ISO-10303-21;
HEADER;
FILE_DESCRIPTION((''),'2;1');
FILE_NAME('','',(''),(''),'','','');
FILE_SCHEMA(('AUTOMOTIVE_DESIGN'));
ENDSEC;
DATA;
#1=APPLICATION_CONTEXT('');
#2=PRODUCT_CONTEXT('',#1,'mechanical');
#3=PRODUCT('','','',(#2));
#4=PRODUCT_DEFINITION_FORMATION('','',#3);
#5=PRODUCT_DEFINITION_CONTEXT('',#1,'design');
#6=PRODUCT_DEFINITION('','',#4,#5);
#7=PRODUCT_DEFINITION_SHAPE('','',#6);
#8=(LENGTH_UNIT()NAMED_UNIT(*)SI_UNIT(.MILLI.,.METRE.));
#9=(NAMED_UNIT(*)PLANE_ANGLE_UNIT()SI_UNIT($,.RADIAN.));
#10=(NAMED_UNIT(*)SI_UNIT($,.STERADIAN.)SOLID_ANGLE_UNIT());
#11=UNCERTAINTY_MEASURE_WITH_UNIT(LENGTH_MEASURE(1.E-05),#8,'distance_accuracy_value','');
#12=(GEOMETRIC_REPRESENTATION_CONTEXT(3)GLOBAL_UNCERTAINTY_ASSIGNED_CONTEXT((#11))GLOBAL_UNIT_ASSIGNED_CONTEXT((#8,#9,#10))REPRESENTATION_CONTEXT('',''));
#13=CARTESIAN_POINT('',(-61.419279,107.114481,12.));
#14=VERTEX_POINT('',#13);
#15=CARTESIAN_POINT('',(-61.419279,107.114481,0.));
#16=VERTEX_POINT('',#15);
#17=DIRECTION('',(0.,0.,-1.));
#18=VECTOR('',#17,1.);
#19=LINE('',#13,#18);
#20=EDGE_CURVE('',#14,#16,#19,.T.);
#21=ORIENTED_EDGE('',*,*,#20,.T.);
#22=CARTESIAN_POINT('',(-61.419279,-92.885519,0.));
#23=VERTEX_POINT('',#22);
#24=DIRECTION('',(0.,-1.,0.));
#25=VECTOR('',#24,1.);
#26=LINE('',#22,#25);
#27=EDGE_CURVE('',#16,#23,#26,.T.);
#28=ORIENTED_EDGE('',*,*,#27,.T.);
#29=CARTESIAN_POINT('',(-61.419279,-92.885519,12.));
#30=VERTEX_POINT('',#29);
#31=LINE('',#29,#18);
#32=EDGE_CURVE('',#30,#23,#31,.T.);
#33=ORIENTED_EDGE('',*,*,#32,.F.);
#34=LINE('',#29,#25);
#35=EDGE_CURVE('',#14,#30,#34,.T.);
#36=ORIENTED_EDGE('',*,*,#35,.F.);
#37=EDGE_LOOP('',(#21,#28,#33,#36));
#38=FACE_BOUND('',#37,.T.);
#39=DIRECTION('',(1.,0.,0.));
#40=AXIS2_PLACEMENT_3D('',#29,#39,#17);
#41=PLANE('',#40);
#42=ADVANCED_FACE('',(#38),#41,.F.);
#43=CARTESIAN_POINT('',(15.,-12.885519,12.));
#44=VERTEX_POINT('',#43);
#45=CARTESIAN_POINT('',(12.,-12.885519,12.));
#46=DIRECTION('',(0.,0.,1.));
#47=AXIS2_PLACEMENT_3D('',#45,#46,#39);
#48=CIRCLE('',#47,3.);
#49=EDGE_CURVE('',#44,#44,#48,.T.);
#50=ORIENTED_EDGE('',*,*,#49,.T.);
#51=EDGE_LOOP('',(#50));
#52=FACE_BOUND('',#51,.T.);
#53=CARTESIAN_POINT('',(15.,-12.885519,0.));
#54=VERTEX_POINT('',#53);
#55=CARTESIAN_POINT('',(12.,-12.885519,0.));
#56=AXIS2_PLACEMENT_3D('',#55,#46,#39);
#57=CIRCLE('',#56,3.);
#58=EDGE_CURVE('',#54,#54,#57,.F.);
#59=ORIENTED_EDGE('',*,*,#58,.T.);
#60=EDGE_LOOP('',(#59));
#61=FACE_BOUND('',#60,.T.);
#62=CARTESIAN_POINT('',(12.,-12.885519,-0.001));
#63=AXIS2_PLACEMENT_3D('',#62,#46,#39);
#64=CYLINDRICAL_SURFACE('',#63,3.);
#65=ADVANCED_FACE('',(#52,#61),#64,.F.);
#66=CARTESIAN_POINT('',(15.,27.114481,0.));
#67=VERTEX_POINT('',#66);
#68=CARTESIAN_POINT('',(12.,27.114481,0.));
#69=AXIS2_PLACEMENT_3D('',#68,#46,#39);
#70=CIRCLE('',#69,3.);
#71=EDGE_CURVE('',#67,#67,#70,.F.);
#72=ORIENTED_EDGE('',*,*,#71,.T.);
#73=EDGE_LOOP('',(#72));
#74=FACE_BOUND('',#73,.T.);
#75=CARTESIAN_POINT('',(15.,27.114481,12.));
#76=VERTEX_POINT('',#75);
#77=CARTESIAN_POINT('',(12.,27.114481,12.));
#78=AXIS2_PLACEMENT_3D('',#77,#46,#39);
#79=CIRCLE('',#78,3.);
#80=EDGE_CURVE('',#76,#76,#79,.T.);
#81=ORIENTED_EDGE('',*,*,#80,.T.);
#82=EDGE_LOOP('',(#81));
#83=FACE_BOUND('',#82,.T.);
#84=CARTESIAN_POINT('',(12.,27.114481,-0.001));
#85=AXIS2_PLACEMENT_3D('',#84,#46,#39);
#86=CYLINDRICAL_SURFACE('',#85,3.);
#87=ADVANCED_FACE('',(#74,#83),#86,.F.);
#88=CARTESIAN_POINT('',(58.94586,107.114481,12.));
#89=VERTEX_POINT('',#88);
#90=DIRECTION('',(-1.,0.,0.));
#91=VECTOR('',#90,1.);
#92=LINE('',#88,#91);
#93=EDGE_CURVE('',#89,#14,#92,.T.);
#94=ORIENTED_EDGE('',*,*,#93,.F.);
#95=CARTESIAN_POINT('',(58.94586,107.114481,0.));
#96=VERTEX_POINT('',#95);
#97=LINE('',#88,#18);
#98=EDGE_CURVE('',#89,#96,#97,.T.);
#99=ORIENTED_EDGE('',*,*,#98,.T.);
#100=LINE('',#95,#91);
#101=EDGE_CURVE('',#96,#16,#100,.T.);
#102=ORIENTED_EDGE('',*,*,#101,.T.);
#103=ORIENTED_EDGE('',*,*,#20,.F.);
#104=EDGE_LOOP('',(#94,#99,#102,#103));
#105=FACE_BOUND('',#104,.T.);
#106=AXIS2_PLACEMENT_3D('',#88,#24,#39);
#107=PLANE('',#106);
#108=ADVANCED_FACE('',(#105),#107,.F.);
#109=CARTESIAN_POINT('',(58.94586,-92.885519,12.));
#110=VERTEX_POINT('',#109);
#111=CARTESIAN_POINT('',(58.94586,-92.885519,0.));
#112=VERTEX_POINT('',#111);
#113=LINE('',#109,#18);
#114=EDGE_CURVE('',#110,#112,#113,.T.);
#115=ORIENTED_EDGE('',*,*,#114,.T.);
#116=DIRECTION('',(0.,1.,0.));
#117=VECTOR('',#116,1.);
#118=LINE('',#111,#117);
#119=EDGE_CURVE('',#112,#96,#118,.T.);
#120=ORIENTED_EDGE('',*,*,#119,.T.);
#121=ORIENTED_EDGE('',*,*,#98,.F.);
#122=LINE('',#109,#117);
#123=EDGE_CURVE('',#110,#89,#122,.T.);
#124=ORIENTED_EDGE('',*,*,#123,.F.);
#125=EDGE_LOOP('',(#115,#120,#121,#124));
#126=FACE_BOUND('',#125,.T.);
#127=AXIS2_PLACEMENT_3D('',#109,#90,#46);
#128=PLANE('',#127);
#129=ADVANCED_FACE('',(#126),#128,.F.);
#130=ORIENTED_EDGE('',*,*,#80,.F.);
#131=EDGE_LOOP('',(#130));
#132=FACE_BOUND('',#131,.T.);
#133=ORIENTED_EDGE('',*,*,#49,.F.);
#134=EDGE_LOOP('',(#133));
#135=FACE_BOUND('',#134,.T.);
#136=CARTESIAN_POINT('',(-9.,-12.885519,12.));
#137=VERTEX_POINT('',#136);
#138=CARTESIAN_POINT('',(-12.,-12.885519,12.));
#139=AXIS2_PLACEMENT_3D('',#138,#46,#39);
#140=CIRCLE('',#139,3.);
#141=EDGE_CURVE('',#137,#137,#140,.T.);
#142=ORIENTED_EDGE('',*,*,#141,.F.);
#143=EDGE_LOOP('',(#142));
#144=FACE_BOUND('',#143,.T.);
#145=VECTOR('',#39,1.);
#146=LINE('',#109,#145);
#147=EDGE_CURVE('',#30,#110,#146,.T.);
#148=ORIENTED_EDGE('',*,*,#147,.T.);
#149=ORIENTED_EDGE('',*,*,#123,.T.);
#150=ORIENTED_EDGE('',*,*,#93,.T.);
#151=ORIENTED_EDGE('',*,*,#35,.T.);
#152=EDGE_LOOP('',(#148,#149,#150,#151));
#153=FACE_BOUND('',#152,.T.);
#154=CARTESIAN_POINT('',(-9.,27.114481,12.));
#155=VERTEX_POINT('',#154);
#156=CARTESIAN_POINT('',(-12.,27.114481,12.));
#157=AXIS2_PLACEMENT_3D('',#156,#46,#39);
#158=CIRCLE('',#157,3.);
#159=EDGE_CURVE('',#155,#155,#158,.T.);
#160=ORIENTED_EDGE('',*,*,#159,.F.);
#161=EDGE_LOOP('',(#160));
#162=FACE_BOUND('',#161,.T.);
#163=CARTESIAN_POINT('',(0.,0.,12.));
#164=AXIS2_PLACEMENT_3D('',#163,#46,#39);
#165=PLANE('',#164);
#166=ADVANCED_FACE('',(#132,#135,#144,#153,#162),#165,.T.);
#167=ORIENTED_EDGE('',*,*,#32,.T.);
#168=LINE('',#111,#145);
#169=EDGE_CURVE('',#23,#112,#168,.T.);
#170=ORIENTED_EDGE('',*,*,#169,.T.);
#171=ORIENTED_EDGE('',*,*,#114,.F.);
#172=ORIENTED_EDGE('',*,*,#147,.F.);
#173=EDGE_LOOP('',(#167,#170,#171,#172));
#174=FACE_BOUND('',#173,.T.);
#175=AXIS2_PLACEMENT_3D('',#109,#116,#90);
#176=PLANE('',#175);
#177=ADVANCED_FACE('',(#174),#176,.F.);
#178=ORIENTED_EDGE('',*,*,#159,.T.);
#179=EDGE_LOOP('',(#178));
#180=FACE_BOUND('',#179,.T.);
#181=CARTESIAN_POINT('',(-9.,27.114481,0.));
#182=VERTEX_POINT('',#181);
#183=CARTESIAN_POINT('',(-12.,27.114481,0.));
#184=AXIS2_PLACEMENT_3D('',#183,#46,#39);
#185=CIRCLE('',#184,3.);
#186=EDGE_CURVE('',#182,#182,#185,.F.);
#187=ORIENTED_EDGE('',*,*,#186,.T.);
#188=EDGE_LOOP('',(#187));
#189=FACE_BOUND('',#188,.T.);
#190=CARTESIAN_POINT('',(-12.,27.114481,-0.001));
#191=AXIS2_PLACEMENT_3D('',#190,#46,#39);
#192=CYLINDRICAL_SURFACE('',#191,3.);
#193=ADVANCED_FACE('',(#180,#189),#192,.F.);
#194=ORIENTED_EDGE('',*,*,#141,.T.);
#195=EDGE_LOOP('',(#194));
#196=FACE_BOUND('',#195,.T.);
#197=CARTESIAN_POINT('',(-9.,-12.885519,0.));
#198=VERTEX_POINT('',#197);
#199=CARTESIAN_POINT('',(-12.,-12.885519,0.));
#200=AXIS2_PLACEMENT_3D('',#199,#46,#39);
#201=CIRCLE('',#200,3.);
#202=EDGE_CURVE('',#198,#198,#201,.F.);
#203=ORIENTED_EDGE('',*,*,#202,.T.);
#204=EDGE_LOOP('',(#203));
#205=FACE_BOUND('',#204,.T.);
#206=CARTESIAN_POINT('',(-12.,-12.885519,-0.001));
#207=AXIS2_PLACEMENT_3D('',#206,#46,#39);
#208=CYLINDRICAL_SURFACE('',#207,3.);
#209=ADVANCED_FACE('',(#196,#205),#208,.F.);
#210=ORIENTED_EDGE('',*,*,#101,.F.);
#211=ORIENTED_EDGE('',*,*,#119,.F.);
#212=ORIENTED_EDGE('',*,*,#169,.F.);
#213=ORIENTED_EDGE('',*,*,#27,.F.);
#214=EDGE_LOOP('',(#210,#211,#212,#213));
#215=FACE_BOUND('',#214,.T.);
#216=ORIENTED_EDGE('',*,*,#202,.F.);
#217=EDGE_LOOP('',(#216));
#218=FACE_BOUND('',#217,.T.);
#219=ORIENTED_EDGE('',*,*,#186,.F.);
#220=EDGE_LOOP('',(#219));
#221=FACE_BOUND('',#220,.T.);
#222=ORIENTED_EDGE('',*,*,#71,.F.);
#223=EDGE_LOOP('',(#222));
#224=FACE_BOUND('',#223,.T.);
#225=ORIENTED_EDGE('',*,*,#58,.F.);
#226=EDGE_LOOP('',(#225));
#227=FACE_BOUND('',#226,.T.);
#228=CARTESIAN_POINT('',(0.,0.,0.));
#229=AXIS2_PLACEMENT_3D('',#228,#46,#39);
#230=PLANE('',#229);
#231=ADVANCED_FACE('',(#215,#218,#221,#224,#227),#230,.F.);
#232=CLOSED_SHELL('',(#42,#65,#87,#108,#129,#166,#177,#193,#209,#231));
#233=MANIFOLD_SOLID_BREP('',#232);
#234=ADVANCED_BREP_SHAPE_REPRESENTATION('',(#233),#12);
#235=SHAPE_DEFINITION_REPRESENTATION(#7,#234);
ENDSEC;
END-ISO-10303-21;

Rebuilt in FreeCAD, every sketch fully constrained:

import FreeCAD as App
import Part
import Sketcher

V = App.Vector
Q = App.Units.Quantity


def add_polygon(sketch, points):
    """Adds a closed chain of lines whose ends are joined by coincident constraints."""
    first, n = sketch.GeometryCount, len(points)
    for a, b in zip(points, points[1:] + points[:1]):
        sketch.addGeometry(Part.LineSegment(App.Vector(*a, 0), App.Vector(*b, 0)), False)
    for i in range(n):
        sketch.addConstraint(Sketcher.Constraint("Coincident", first + i, 2, first + (i + 1) % n, 1))

doc = App.newDocument("Part")
body = doc.addObject("PartDesign::Body", "Body")

sketch1 = body.newObject("Sketcher::SketchObject", "Sketch")
sketch1.AttachmentSupport = (doc.getObject("XY_Plane"), [""])
sketch1.MapMode = "FlatFace"
add_polygon(sketch1, [(-61, 107), (-61, -93), (59, -93), (59, 107)])
sketch1.addConstraint(Sketcher.Constraint("Vertical", 0))
sketch1.addConstraint(Sketcher.Constraint("Horizontal", 1))
sketch1.addConstraint(Sketcher.Constraint("Vertical", 2))
sketch1.addConstraint(Sketcher.Constraint("Horizontal", 3))
sketch1.addConstraint(Sketcher.Constraint("DistanceY", 0, 2, 0, 1, Q("200 mm")))
sketch1.addConstraint(Sketcher.Constraint("DistanceX", 1, 1, 1, 2, Q("120.365139 mm")))
sketch1.addConstraint(Sketcher.Constraint("DistanceX", 0, 2, -1, 1, Q("61.419279 mm")))
sketch1.addConstraint(Sketcher.Constraint("DistanceY", 0, 2, -1, 1, Q("92.885519 mm")))
pad1 = body.newObject("PartDesign::Pad", "Pad")
pad1.Profile = sketch1
pad1.Length = 12

sketch2 = body.newObject("Sketcher::SketchObject", "Sketch001")
sketch2.AttachmentSupport = (doc.getObject("XY_Plane"), [""])
sketch2.MapMode = "FlatFace"
sketch2.AttachmentOffset = App.Placement(V(0, 0, 12), App.Rotation())
sketch2.addGeometry(Part.Circle(V(-12, 27.1, 0), V(0, 0, 1), 3), False)
sketch2.addConstraint(Sketcher.Constraint("Diameter", 0, Q("6 mm")))
sketch2.addConstraint(Sketcher.Constraint("DistanceX", 0, 3, -1, 1, Q("12 mm")))
sketch2.addConstraint(Sketcher.Constraint("DistanceY", -1, 1, 0, 3, Q("27.114481 mm")))
pocket1 = body.newObject("PartDesign::Pocket", "Pocket")
pocket1.Profile = sketch2
pocket1.Type = "UpToFirst"

sketch3 = body.newObject("Sketcher::SketchObject", "Sketch002")
sketch3.AttachmentSupport = (doc.getObject("XY_Plane"), [""])
sketch3.MapMode = "FlatFace"
sketch3.AttachmentOffset = App.Placement(V(0, 0, 12), App.Rotation())
sketch3.addGeometry(Part.Circle(V(12, 27.1, 0), V(0, 0, 1), 3), False)
sketch3.addConstraint(Sketcher.Constraint("Diameter", 0, Q("6 mm")))
sketch3.addConstraint(Sketcher.Constraint("DistanceX", -1, 1, 0, 3, Q("12 mm")))
sketch3.addConstraint(Sketcher.Constraint("DistanceY", -1, 1, 0, 3, Q("27.114481 mm")))
pocket2 = body.newObject("PartDesign::Pocket", "Pocket001")
pocket2.Profile = sketch3
pocket2.Type = "UpToFirst"

sketch4 = body.newObject("Sketcher::SketchObject", "Sketch003")
sketch4.AttachmentSupport = (doc.getObject("XY_Plane"), [""])
sketch4.MapMode = "FlatFace"
sketch4.AttachmentOffset = App.Placement(V(0, 0, 12), App.Rotation())
sketch4.addGeometry(Part.Circle(V(-12, -12.9, 0), V(0, 0, 1), 3), False)
sketch4.addConstraint(Sketcher.Constraint("Diameter", 0, Q("6 mm")))
sketch4.addConstraint(Sketcher.Constraint("DistanceX", 0, 3, -1, 1, Q("12 mm")))
sketch4.addConstraint(Sketcher.Constraint("DistanceY", 0, 3, -1, 1, Q("12.885519 mm")))
pocket3 = body.newObject("PartDesign::Pocket", "Pocket002")
pocket3.Profile = sketch4
pocket3.Type = "UpToFirst"

sketch5 = body.newObject("Sketcher::SketchObject", "Sketch004")
sketch5.AttachmentSupport = (doc.getObject("XY_Plane"), [""])
sketch5.MapMode = "FlatFace"
sketch5.AttachmentOffset = App.Placement(V(0, 0, 12), App.Rotation())
sketch5.addGeometry(Part.Circle(V(12, -12.9, 0), V(0, 0, 1), 3), False)
sketch5.addConstraint(Sketcher.Constraint("Diameter", 0, Q("6 mm")))
sketch5.addConstraint(Sketcher.Constraint("DistanceX", -1, 1, 0, 3, Q("12 mm")))
sketch5.addConstraint(Sketcher.Constraint("DistanceY", 0, 3, -1, 1, Q("12.885519 mm")))
pocket4 = body.newObject("PartDesign::Pocket", "Pocket003")
pocket4.Profile = sketch5
pocket4.Type = "UpToFirst"

doc.recompute()
